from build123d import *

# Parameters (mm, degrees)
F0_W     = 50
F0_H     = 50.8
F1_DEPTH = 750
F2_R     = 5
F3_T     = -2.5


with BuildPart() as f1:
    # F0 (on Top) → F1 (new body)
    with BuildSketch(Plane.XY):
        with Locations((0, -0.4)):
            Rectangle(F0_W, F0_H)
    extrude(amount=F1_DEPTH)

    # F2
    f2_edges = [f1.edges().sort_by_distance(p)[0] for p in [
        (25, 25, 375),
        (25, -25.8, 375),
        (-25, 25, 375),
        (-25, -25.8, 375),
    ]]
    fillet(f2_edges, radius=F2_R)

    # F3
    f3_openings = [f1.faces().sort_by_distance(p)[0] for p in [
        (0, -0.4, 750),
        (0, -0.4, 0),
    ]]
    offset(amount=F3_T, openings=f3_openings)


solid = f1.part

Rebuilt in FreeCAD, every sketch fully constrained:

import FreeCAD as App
import Part
import Sketcher


def edges_at(feature, points):
    """Names of the edges that pass closest to the given points."""
    edges = feature.Shape.Edges
    near = lambda p: min(range(len(edges)), key=lambda i: edges[i].distToShape(Part.Vertex(*p))[0])
    return sorted({f"Edge{near(p) + 1}" for p in points})


def faces_at(feature, points):
    """Names of the faces that lie closest to the given points."""
    faces = feature.Shape.Faces
    near = lambda p: min(range(len(faces)), key=lambda i: faces[i].distToShape(Part.Vertex(*p))[0])
    return sorted({f"Face{near(p) + 1}" for p in points})


def add_polygon(sketch, points):
    """Adds a closed chain of lines whose ends are joined by coincident constraints."""
    first, n = sketch.GeometryCount, len(points)
    for a, b in zip(points, points[1:] + points[:1]):
        sketch.addGeometry(Part.LineSegment(App.Vector(*a, 0), App.Vector(*b, 0)), False)
    for i in range(n):
        sketch.addConstraint(Sketcher.Constraint("Coincident", first + i, 2, first + (i + 1) % n, 1))

doc = App.newDocument("Part")
body = doc.addObject("PartDesign::Body", "Body")

# Sketch on XY plane
sketch1 = doc.addObject("Sketcher::SketchObject", "Sketch")
body.addObject(sketch1)
sketch1.AttachmentSupport = (doc.XY_Plane, [""])
sketch1.MapMode = "FlatFace"
add_polygon(sketch1, [(-25, 25), (-25, -26), (25, -26), (25, 25)])  # lines 0-3
sketch1.addConstraint(Sketcher.Constraint("Vertical", 0))
sketch1.addConstraint(Sketcher.Constraint("Horizontal", 1))
sketch1.addConstraint(Sketcher.Constraint("Vertical", 2))
sketch1.addConstraint(Sketcher.Constraint("Horizontal", 3))
sketch1.addConstraint(Sketcher.Constraint("DistanceX", 1, 1, 1, 2, 50.0))
sketch1.addConstraint(Sketcher.Constraint("DistanceY", 0, 2, 0, 1, 50.8))
sketch1.addConstraint(Sketcher.Constraint("DistanceX", 0, 2, -1, 1, 25.0))
sketch1.addConstraint(Sketcher.Constraint("DistanceY", -1, 1, 2, 2, 25.0))
pad1 = doc.addObject("PartDesign::Pad", "Pad")
body.addObject(pad1)
pad1.Profile = sketch1
pad1.Length = 750
doc.recompute()

fillet = doc.addObject("PartDesign::Fillet", "Fillet")
body.addObject(fillet)
fillet.Base = (pad1, edges_at(pad1, [
    (25, 25, 375),
    (25, -25.8, 375),
    (-25, 25, 375),
    (-25, -25.8, 375),
]))
fillet.Radius = 5
doc.recompute()

thickness = doc.addObject("PartDesign::Thickness", "Thickness")
body.addObject(thickness)
thickness.Base = (fillet, faces_at(fillet, [(0, -0.4, 750), (0, -0.4, 0)]))
thickness.Value = 2.5
thickness.Reversed = True
thickness.Join = "Arc"

doc.recompute()
